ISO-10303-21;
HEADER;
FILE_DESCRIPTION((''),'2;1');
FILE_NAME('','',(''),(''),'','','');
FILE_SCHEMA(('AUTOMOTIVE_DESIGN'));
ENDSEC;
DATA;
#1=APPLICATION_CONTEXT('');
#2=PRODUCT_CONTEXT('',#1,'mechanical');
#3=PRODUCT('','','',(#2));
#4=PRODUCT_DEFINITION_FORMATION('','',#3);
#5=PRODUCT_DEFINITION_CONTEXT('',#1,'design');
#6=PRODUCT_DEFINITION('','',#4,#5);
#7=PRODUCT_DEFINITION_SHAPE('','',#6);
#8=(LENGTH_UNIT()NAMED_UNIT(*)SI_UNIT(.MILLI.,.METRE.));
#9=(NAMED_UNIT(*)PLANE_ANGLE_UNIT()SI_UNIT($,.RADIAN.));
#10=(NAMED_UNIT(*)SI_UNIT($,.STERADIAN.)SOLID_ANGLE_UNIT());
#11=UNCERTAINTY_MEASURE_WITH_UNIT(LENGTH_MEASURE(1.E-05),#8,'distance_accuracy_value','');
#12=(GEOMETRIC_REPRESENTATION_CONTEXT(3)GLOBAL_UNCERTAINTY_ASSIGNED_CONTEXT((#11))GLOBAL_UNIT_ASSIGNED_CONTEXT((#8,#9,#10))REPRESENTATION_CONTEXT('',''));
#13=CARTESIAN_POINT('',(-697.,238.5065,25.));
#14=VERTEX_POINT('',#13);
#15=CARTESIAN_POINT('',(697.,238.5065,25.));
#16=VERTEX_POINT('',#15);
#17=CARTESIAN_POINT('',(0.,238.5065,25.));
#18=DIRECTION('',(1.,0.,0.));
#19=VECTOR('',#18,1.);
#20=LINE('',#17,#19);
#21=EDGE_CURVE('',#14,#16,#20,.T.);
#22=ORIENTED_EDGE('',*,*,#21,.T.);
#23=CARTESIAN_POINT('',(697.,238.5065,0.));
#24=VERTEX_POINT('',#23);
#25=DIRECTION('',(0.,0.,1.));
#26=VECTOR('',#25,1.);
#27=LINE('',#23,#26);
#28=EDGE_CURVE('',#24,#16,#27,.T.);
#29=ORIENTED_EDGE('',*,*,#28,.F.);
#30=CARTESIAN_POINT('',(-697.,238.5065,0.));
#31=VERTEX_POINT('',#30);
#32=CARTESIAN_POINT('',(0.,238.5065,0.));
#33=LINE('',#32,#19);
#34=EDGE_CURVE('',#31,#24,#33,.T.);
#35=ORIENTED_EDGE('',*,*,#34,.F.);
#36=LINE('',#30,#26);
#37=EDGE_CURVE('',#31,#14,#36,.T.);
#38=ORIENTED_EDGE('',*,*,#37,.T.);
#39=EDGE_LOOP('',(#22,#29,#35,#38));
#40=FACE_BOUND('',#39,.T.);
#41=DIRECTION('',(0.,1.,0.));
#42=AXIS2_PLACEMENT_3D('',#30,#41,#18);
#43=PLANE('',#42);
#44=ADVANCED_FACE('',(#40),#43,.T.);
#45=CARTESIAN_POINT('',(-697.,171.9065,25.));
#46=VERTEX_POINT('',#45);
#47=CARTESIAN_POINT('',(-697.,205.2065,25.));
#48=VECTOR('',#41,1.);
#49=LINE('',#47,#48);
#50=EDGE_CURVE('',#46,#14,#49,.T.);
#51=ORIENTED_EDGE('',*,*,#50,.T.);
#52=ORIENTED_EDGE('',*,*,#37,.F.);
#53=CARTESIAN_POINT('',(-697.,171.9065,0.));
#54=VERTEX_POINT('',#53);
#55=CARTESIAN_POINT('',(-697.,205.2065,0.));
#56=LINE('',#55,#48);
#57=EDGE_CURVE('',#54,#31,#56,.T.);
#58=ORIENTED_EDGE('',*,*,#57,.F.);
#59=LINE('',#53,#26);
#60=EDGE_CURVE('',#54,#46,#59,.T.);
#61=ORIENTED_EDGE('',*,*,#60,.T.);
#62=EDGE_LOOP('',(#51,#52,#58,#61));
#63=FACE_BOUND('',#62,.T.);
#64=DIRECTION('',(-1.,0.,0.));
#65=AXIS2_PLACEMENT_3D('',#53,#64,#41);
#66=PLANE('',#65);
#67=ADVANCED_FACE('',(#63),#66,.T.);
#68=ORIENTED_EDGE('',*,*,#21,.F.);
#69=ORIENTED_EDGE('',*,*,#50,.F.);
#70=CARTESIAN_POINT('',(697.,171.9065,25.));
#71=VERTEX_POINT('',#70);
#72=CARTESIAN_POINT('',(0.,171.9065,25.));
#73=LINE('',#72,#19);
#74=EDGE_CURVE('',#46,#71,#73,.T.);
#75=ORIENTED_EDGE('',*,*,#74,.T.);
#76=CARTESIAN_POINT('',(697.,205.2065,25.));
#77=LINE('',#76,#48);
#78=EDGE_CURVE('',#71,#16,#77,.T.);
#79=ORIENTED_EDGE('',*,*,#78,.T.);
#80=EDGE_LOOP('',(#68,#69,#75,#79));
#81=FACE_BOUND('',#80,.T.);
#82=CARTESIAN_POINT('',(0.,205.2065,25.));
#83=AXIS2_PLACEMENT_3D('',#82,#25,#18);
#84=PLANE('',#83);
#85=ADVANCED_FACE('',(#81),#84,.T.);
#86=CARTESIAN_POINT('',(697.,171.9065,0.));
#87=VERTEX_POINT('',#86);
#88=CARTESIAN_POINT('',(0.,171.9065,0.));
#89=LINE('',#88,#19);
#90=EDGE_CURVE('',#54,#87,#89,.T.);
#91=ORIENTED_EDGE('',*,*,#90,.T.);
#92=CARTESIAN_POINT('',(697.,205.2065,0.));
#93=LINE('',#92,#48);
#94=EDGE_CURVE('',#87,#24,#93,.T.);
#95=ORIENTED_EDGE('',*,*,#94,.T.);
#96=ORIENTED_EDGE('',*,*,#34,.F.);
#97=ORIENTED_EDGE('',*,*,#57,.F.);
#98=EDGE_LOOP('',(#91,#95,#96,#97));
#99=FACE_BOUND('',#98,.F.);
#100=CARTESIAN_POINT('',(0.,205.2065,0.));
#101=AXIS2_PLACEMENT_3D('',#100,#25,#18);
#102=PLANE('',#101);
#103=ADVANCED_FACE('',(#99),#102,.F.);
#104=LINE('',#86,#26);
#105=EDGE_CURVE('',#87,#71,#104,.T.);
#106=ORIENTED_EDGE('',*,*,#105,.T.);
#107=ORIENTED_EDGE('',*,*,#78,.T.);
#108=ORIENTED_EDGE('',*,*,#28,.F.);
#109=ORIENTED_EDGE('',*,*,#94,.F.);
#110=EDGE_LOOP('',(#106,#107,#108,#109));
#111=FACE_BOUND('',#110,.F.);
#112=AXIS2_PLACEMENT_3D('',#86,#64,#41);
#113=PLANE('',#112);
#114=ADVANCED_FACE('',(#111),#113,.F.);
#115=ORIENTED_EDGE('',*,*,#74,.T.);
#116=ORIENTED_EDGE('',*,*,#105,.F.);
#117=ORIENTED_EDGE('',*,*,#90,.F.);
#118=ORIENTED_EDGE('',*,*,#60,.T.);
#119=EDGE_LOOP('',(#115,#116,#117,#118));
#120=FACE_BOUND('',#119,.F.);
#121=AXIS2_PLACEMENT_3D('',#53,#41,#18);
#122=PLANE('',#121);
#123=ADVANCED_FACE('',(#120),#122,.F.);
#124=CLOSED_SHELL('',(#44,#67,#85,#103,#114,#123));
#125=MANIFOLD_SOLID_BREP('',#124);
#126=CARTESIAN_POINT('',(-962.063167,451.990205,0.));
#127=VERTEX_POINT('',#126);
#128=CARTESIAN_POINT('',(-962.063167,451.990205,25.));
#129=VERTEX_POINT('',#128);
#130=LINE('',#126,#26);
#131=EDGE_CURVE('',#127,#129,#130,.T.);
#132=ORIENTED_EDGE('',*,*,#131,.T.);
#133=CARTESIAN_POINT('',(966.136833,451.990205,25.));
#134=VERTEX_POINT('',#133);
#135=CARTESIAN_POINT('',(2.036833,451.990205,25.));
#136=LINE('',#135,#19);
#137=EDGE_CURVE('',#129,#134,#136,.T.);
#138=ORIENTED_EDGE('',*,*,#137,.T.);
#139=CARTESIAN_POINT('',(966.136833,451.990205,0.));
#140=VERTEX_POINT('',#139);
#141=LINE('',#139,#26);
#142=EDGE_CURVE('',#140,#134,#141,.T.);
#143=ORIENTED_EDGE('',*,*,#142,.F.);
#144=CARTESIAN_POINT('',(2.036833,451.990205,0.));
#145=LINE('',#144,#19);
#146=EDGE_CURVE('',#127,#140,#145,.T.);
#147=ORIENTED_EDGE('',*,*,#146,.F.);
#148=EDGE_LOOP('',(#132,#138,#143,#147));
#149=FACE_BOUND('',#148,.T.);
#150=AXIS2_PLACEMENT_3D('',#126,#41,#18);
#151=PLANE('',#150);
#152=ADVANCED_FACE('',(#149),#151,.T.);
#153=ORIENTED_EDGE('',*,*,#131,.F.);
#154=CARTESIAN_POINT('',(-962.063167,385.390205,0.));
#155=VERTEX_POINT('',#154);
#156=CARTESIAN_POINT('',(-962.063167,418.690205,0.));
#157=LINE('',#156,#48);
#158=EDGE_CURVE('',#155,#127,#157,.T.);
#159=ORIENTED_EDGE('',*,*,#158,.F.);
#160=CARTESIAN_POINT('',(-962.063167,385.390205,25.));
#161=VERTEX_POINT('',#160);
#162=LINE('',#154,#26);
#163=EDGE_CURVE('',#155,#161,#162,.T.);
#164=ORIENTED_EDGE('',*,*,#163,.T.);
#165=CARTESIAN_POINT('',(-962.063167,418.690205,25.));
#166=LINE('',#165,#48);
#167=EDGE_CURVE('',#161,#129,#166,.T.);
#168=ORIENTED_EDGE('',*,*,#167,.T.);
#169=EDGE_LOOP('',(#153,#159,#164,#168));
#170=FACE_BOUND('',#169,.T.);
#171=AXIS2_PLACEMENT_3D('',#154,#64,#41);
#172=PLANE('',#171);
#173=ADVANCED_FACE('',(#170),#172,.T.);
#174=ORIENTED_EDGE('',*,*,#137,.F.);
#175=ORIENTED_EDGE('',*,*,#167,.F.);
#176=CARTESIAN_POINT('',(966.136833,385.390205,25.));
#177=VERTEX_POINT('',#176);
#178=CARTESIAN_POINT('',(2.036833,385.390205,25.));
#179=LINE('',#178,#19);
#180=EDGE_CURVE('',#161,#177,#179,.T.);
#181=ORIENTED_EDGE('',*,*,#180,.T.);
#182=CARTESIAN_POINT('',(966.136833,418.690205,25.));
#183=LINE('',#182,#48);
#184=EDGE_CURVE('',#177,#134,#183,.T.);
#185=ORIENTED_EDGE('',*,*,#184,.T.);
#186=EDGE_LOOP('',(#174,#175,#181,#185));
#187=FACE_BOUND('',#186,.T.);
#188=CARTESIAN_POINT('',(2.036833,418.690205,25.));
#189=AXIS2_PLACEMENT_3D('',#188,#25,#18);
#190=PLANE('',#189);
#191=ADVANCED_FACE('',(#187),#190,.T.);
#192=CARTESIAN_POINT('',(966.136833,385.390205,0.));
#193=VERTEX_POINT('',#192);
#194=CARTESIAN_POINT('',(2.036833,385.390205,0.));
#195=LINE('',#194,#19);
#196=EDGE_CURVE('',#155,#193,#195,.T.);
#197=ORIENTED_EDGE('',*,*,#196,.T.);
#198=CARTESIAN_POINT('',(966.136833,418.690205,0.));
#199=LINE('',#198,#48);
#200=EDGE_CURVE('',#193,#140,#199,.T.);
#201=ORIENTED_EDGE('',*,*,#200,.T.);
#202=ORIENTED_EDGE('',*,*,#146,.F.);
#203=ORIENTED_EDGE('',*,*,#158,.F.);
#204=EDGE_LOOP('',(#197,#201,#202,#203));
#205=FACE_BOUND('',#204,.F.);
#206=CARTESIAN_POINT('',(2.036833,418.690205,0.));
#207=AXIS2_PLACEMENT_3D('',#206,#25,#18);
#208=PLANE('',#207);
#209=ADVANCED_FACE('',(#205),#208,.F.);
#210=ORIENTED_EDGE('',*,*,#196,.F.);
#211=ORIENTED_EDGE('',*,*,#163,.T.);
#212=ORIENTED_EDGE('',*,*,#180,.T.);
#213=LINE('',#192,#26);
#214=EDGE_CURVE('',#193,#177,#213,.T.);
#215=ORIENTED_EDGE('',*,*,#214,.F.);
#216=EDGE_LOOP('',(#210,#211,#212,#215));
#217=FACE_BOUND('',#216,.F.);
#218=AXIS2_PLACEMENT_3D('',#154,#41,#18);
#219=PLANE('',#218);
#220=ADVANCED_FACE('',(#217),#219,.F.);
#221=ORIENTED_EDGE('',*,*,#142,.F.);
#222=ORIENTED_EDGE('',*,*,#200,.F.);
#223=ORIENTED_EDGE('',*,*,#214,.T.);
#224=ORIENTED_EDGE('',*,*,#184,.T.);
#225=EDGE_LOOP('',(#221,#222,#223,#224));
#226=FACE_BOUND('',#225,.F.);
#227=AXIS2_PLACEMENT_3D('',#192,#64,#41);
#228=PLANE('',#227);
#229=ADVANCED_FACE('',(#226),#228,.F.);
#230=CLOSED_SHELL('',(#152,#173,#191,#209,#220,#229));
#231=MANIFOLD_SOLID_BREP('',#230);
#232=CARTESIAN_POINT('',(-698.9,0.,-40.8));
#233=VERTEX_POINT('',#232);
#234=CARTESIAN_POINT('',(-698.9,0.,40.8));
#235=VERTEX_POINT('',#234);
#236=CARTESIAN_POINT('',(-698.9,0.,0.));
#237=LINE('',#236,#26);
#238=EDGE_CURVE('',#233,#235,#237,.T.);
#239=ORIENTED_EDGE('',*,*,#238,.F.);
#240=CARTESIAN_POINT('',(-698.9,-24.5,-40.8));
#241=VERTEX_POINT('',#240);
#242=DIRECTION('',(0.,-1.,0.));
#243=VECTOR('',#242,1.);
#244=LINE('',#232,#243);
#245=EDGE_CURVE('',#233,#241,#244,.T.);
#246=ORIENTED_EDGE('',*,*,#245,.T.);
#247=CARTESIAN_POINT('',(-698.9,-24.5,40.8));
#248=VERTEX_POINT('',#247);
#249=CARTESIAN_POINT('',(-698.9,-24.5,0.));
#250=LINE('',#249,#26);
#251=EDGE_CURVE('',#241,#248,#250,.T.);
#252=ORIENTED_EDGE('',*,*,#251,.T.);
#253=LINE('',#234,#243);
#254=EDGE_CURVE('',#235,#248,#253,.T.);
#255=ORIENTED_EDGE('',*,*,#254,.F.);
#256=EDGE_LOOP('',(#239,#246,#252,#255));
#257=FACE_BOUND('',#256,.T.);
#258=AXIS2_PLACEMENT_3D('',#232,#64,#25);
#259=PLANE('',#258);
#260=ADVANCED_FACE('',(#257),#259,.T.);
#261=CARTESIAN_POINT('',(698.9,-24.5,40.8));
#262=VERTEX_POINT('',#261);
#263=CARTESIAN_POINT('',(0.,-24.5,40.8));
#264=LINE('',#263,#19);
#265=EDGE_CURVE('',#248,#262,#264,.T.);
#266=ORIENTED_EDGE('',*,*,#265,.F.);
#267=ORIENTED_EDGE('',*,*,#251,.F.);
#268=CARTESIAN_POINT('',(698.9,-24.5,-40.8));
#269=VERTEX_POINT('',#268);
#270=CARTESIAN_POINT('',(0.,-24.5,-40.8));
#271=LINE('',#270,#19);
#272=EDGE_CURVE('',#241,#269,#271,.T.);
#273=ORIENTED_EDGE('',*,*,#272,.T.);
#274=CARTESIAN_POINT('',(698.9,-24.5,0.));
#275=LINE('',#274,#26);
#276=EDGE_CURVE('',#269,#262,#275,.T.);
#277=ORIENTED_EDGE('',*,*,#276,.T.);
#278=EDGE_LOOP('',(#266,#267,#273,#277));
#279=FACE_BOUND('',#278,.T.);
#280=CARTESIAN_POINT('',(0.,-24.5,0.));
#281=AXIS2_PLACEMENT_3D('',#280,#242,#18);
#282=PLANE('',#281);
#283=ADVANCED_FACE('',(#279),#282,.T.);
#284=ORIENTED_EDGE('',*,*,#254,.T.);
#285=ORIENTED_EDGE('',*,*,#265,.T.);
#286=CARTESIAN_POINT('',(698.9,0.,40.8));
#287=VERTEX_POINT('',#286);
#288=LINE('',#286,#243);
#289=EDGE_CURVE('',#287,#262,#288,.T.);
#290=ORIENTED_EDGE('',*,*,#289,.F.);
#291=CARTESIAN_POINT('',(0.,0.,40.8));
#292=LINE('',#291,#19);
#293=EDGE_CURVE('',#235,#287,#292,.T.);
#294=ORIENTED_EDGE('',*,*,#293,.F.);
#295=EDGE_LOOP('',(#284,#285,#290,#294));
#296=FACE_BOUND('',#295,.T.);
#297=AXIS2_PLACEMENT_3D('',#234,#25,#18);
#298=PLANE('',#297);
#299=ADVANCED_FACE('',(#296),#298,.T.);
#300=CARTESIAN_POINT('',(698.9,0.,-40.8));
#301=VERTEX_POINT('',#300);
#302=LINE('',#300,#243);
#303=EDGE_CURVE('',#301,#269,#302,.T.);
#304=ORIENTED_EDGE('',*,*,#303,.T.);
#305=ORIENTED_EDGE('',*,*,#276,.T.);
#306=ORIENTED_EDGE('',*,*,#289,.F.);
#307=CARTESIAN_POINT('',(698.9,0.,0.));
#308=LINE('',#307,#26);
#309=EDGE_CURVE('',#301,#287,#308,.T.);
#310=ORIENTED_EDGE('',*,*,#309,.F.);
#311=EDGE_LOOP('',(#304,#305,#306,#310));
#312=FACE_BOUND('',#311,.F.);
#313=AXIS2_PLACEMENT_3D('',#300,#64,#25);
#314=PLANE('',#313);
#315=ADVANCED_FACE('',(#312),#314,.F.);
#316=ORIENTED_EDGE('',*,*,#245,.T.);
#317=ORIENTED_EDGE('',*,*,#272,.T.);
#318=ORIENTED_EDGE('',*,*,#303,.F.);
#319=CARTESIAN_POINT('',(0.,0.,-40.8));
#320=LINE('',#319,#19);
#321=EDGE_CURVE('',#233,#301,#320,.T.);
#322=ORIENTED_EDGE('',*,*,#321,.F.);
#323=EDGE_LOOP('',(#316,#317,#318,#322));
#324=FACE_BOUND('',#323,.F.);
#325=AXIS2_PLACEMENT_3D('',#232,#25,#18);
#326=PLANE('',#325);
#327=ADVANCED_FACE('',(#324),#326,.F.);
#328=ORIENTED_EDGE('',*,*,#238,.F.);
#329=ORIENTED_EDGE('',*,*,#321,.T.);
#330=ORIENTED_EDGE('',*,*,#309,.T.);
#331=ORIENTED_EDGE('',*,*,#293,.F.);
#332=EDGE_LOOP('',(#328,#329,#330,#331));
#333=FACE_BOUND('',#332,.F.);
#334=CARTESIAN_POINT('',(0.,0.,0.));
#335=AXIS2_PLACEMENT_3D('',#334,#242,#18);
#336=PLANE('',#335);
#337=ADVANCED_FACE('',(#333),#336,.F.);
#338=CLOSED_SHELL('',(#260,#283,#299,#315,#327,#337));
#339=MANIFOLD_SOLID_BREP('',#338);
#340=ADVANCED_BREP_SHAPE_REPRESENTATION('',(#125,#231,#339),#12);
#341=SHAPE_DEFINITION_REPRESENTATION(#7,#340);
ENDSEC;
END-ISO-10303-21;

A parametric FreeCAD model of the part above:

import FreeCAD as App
import Part
import Sketcher

V = App.Vector
Q = App.Units.Quantity

doc = App.newDocument("Part")
body = doc.addObject("PartDesign::Body", "Body")

# Sketch on XZ plane
sketch1 = body.newObject("Sketcher::SketchObject", "Sketch")
sketch1.AttachmentSupport = (doc.getObject("XZ_Plane"), [""])
sketch1.MapMode = "FlatFace"
sketch1.addGeometry([
    Part.LineSegment(V(-699, 41, 0), V(-699, -41, 0)),
    Part.LineSegment(V(-699, -41, 0), V(699, -41, 0)),
    Part.LineSegment(V(699, -41, 0), V(699, 41, 0)),
    Part.LineSegment(V(699, 41, 0), V(-699, 41, 0)),
], False)
sketch1.addConstraint([
    Sketcher.Constraint("Coincident", 0, 2, 1, 1),
    Sketcher.Constraint("Coincident", 1, 2, 2, 1),
    Sketcher.Constraint("Coincident", 2, 2, 3, 1),
    Sketcher.Constraint("Coincident", 3, 2, 0, 1),
    Sketcher.Constraint("Vertical", 0),
    Sketcher.Constraint("Horizontal", 1),
    Sketcher.Constraint("Vertical", 2),
    Sketcher.Constraint("Horizontal", 3),
    Sketcher.Constraint("Symmetric", 0, 2, 2, 2, -1, 1),
    Sketcher.Constraint("DistanceX", 1, 1, 1, 2, Q("1397.8 mm")),
    Sketcher.Constraint("DistanceY", 0, 2, 0, 1, Q("81.6 mm")),
])
pad1 = body.newObject("PartDesign::Pad", "Pad")
pad1.Profile = sketch1
pad1.Length = 24.5
body2 = doc.addObject("PartDesign::Body", "Body001")

# Sketch on XY plane
sketch2 = body2.newObject("Sketcher::SketchObject", "Sketch001")
sketch2.AttachmentSupport = (doc.getObject("XY_Plane001"), [""])
sketch2.MapMode = "FlatFace"
sketch2.addGeometry([
    Part.LineSegment(V(-697, 239, 0), V(-697, 172, 0)),
    Part.LineSegment(V(-697, 172, 0), V(697, 172, 0)),
    Part.LineSegment(V(697, 172, 0), V(697, 239, 0)),
    Part.LineSegment(V(697, 239, 0), V(-697, 239, 0)),
], False)
sketch2.addConstraint([
    Sketcher.Constraint("Coincident", 0, 2, 1, 1),
    Sketcher.Constraint("Coincident", 1, 2, 2, 1),
    Sketcher.Constraint("Coincident", 2, 2, 3, 1),
    Sketcher.Constraint("Coincident", 3, 2, 0, 1),
    Sketcher.Constraint("Vertical", 0),
    Sketcher.Constraint("Horizontal", 1),
    Sketcher.Constraint("Vertical", 2),
    Sketcher.Constraint("Horizontal", 3),
    Sketcher.Constraint("DistanceX", 1, 1, 1, 2, Q("1394 mm")),
    Sketcher.Constraint("DistanceY", 0, 2, 0, 1, Q("66.6 mm")),
    Sketcher.Constraint("DistanceX", 0, 2, -1, 1, Q("697 mm")),
    Sketcher.Constraint("DistanceY", -1, 1, 0, 2, Q("171.9065 mm")),
])
pad2 = body2.newObject("PartDesign::Pad", "Pad001")
pad2.Profile = sketch2
pad2.Length = 25
body3 = doc.addObject("PartDesign::Body", "Body002")

# Sketch on XY plane
sketch3 = body3.newObject("Sketcher::SketchObject", "Sketch002")
sketch3.AttachmentSupport = (doc.getObject("XY_Plane002"), [""])
sketch3.MapMode = "FlatFace"
sketch3.addGeometry([
    Part.LineSegment(V(-962, 452, 0), V(-962, 385, 0)),
    Part.LineSegment(V(-962, 385, 0), V(966, 385, 0)),
    Part.LineSegment(V(966, 385, 0), V(966, 452, 0)),
    Part.LineSegment(V(966, 452, 0), V(-962, 452, 0)),
], False)
sketch3.addConstraint([
    Sketcher.Constraint("Coincident", 0, 2, 1, 1),
    Sketcher.Constraint("Coincident", 1, 2, 2, 1),
    Sketcher.Constraint("Coincident", 2, 2, 3, 1),
    Sketcher.Constraint("Coincident", 3, 2, 0, 1),
    Sketcher.Constraint("Vertical", 0),
    Sketcher.Constraint("Horizontal", 1),
    Sketcher.Constraint("Vertical", 2),
    Sketcher.Constraint("Horizontal", 3),
    Sketcher.Constraint("DistanceX", 1, 1, 1, 2, Q("1928.2 mm")),
    Sketcher.Constraint("DistanceY", 0, 2, 0, 1, Q("66.6 mm")),
    Sketcher.Constraint("DistanceX", 0, 2, -1, 1, Q("962.063167 mm")),
    Sketcher.Constraint("DistanceY", -1, 1, 0, 2, Q("385.390205 mm")),
])
pad3 = body3.newObject("PartDesign::Pad", "Pad002")
pad3.Profile = sketch3
pad3.Length = 25

doc.recompute()
